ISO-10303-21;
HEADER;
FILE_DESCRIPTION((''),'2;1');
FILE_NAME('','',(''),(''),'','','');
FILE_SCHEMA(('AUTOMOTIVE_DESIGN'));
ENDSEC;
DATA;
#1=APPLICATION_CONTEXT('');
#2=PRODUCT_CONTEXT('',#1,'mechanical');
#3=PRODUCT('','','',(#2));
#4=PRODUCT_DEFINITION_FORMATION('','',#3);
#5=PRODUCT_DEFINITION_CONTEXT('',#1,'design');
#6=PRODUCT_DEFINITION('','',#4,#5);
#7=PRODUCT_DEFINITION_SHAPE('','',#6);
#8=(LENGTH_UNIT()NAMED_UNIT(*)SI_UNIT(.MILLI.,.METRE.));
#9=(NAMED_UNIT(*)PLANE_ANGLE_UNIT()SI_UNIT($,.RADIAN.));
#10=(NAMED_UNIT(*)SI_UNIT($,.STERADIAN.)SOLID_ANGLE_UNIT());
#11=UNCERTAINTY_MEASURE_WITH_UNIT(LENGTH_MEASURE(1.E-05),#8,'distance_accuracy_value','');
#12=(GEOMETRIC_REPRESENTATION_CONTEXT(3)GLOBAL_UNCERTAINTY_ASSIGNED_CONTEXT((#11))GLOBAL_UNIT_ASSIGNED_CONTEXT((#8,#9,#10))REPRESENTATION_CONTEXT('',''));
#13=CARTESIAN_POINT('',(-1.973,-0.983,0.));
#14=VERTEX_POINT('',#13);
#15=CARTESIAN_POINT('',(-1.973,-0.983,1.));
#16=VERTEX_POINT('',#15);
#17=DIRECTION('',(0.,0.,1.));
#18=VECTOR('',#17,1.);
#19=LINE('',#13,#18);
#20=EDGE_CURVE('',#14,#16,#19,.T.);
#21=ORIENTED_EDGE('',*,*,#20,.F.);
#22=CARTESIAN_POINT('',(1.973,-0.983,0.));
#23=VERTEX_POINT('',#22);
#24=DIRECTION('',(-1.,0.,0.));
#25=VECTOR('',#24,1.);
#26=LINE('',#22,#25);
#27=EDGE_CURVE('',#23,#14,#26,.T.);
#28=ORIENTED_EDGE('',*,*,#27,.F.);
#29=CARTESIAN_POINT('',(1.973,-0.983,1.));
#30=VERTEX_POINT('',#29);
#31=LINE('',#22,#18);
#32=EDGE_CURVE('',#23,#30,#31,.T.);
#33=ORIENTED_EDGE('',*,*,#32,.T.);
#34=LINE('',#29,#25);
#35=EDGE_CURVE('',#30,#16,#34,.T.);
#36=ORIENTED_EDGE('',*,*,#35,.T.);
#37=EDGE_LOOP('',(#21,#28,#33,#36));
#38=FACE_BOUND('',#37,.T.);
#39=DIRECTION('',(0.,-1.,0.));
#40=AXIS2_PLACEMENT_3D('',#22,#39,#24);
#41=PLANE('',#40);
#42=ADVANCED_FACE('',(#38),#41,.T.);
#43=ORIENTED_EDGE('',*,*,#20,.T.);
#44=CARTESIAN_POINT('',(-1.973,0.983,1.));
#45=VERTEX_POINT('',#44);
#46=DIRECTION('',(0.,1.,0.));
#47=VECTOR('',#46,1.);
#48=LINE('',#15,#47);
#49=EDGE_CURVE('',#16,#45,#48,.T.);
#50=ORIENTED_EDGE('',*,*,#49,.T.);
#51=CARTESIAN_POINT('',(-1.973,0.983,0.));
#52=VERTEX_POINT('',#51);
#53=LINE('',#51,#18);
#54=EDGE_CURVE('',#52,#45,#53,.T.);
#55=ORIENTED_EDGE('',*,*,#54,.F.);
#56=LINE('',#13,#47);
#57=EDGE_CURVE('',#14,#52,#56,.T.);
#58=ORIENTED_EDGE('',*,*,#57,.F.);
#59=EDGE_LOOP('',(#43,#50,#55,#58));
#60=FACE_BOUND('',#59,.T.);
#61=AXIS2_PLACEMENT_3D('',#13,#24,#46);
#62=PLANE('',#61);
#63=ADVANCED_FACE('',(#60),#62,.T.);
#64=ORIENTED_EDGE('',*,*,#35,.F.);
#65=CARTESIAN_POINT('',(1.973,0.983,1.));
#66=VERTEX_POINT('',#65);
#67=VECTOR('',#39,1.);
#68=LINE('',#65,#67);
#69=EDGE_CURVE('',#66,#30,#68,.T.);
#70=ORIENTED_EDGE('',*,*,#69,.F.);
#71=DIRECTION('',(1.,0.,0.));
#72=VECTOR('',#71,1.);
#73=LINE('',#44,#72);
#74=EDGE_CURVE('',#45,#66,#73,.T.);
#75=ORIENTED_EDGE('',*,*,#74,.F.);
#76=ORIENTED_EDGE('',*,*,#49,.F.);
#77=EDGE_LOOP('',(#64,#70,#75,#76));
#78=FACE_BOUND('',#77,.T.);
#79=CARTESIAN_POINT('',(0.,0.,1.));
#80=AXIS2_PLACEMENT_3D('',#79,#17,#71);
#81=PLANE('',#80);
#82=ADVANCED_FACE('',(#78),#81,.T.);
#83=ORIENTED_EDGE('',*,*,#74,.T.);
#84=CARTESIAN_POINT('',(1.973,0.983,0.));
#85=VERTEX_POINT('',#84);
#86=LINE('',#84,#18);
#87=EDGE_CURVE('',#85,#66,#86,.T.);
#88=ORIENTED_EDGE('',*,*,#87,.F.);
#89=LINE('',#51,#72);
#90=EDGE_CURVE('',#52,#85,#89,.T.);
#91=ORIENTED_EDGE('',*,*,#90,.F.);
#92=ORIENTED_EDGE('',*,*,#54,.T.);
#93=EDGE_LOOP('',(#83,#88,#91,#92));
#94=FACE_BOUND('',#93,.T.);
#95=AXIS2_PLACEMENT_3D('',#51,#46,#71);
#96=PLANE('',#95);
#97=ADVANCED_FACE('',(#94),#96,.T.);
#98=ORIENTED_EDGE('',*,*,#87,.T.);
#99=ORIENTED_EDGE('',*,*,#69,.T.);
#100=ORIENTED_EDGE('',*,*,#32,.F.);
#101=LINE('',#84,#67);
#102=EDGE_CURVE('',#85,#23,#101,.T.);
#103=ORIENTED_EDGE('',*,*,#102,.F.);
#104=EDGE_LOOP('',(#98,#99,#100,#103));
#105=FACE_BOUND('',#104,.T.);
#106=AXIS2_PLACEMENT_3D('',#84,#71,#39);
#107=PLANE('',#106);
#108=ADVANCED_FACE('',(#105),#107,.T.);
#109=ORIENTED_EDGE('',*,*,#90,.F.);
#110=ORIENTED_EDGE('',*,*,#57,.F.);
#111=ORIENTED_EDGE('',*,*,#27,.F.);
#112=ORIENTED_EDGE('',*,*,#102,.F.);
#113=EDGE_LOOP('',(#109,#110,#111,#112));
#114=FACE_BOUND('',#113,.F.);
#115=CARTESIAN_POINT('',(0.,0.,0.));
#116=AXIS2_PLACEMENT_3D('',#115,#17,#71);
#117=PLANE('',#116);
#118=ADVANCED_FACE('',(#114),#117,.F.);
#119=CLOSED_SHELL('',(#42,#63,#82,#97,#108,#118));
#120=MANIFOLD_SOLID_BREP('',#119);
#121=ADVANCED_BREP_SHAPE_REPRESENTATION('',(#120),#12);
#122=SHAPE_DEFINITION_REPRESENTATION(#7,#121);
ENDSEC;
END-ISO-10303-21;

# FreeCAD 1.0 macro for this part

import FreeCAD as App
import Part
import Sketcher


def add_polygon(sketch, points):
    """Adds a closed chain of lines whose ends are joined by coincident constraints."""
    first, n = sketch.GeometryCount, len(points)
    for a, b in zip(points, points[1:] + points[:1]):
        sketch.addGeometry(Part.LineSegment(App.Vector(*a, 0), App.Vector(*b, 0)), False)
    for i in range(n):
        sketch.addConstraint(Sketcher.Constraint("Coincident", first + i, 2, first + (i + 1) % n, 1))

doc = App.newDocument("Part")
body = doc.addObject("PartDesign::Body", "Body")

# Sketch on XY plane
sketch1 = body.newObject("Sketcher::SketchObject", "Sketch")
sketch1.AttachmentSupport = (doc.getObject("XY_Plane"), [""])
sketch1.MapMode = "FlatFace"
add_polygon(sketch1, [(1.973, 0.983), (-1.973, 0.983), (-1.973, -0.983), (1.973, -0.983)])  # lines 0-3
sketch1.addConstraint(Sketcher.Constraint("Horizontal", 0))
sketch1.addConstraint(Sketcher.Constraint("Vertical", 1))
sketch1.addConstraint(Sketcher.Constraint("Horizontal", 2))
sketch1.addConstraint(Sketcher.Constraint("Vertical", 3))
sketch1.addConstraint(Sketcher.Constraint("Symmetric", 0, 2, 2, 2, -1, 1))
sketch1.addConstraint(Sketcher.Constraint("DistanceX", 0, 2, 0, 1, 3.946))
sketch1.addConstraint(Sketcher.Constraint("DistanceY", 1, 2, 1, 1, 1.966))
pad1 = body.newObject("PartDesign::Pad", "Pad")
pad1.Profile = sketch1
pad1.Length = 1

doc.recompute()
